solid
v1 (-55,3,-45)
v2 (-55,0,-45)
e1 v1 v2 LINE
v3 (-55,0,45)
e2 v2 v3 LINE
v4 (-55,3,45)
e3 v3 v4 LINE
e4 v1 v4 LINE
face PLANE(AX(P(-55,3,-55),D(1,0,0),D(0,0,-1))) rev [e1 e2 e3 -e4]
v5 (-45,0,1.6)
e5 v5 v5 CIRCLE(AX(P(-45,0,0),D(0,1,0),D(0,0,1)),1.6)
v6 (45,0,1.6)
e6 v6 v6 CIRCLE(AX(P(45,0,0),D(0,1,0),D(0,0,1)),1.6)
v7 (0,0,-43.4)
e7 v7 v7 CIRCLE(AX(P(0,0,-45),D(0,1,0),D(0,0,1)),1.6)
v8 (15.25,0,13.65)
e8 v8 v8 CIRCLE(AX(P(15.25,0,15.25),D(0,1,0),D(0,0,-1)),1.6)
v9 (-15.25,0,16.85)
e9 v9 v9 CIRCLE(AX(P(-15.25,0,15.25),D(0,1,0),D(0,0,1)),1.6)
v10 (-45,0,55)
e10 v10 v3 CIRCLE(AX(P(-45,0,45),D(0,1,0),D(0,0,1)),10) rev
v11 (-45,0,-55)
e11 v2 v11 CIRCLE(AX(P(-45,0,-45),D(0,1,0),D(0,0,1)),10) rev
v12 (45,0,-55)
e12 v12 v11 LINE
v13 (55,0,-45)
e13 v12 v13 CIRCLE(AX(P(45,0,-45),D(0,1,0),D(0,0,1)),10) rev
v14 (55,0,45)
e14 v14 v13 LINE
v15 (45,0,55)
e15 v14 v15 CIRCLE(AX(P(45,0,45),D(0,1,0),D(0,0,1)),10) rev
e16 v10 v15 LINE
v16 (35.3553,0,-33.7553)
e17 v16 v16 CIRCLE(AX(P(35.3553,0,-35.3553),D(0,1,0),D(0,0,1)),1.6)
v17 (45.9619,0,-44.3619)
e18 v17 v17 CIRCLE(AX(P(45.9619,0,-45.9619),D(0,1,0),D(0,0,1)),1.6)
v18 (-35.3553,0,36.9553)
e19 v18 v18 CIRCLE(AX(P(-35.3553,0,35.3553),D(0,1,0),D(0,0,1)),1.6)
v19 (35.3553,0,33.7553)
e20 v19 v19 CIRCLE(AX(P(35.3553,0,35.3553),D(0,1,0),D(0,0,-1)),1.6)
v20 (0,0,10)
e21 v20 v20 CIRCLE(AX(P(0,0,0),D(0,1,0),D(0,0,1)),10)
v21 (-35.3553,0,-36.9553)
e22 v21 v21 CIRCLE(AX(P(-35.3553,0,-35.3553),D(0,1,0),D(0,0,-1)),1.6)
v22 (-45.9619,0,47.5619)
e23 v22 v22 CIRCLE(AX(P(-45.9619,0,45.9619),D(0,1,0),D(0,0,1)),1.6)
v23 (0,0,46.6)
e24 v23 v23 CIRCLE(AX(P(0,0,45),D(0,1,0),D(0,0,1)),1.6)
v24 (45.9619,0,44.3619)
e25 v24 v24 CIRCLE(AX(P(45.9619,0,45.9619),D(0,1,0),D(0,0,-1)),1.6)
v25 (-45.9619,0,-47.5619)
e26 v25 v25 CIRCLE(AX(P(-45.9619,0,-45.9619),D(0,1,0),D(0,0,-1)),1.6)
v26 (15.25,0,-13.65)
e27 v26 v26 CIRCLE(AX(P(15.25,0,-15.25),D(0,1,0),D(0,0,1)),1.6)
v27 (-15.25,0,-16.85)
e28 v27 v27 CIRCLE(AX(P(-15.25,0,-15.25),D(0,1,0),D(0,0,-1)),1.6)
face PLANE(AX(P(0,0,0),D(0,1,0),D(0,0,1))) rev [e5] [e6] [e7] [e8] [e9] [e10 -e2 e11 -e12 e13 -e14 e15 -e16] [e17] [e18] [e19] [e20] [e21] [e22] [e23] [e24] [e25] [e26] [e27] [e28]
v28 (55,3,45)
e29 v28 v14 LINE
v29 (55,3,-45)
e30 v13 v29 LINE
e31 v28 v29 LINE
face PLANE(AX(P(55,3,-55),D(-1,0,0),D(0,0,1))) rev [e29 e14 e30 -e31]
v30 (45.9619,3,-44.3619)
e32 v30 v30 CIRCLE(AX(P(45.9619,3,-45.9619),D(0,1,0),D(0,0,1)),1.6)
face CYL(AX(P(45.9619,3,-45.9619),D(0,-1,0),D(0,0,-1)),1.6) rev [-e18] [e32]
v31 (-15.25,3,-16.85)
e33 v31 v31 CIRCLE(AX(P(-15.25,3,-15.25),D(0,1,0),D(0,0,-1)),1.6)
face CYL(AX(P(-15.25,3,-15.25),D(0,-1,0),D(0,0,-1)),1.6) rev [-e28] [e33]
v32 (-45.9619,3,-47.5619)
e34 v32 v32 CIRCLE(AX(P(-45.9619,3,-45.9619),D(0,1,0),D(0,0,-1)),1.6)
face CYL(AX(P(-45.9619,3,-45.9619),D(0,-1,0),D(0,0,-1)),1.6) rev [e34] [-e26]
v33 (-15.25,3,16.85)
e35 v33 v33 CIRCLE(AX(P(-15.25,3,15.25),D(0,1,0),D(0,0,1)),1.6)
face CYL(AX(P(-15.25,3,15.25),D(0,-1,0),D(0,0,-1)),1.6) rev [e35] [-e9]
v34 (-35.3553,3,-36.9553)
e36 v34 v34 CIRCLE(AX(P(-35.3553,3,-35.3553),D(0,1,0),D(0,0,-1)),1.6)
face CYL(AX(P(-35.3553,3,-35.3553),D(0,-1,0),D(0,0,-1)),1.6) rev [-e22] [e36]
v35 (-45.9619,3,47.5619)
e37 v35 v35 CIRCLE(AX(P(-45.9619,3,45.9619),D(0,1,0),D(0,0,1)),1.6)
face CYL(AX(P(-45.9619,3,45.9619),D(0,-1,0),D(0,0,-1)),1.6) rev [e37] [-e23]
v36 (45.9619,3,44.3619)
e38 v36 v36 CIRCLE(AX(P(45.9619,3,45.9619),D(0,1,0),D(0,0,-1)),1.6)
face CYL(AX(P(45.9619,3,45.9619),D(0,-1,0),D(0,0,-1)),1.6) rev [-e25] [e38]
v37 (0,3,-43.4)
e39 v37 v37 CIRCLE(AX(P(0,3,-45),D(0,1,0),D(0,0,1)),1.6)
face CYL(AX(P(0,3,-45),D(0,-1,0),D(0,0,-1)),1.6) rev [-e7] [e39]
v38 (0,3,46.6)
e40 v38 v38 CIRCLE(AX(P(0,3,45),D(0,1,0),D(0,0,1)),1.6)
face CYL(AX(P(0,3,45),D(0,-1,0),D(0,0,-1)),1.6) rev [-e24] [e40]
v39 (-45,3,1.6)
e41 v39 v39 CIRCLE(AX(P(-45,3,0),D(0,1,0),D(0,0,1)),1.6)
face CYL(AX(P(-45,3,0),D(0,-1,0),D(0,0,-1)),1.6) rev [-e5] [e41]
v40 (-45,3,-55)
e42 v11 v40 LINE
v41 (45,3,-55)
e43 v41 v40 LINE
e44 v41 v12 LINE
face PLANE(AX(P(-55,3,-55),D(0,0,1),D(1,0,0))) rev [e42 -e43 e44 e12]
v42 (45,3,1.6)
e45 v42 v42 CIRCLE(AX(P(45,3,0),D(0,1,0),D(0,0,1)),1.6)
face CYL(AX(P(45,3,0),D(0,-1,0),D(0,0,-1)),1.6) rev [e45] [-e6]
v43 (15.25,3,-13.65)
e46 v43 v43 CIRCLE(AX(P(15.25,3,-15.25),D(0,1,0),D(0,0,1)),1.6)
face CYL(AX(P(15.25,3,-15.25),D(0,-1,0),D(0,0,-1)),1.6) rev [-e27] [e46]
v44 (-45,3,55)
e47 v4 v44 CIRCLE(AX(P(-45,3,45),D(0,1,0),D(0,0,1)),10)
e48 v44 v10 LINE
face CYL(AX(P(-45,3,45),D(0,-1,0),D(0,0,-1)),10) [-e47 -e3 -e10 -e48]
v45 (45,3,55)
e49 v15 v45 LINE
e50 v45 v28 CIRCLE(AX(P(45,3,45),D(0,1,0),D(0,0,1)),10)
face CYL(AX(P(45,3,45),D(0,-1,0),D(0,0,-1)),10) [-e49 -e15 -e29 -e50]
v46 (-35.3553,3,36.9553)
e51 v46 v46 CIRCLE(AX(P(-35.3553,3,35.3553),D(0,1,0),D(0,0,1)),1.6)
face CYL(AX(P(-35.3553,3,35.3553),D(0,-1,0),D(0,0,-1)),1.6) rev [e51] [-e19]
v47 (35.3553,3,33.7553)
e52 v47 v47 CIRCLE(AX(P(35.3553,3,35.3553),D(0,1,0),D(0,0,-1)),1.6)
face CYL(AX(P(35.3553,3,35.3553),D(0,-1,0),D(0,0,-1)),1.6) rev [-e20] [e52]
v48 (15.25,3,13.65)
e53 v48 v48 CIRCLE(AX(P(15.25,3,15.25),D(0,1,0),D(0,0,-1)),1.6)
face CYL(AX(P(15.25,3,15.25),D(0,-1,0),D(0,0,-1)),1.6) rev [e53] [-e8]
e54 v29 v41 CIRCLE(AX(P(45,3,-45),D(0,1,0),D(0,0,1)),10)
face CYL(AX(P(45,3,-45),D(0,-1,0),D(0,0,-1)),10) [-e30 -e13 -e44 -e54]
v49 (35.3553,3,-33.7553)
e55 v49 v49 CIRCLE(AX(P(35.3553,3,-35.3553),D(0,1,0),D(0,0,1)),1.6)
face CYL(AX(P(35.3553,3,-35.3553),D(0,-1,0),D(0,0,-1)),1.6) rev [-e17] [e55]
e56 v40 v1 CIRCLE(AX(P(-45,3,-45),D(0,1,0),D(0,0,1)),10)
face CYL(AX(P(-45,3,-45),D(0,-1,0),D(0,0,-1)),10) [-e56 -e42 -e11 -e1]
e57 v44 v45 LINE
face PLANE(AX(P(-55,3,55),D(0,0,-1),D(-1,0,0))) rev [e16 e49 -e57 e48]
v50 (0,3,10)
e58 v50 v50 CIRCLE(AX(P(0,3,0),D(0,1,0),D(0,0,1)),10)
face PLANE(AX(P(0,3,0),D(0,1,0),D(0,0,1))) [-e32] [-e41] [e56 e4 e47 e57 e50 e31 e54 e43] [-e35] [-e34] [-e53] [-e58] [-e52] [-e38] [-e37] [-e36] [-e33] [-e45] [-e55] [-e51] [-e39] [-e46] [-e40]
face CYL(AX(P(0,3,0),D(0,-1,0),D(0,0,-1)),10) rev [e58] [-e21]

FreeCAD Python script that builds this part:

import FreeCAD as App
import Part
import Sketcher
from FreeCAD import Vector
Q = App.Units.Quantity


def edges_at(feature, points):
    """Names of the edges that pass closest to the given points."""
    edges = feature.Shape.Edges
    near = lambda p: min(range(len(edges)), key=lambda i: edges[i].distToShape(Part.Vertex(*p))[0])
    return sorted({f"Edge{near(p) + 1}" for p in points})

doc = App.newDocument("Part")
body = doc.addObject("PartDesign::Body", "Body")

# Sketch on XZ plane
sketch1 = body.newObject("Sketcher::SketchObject", "Sketch")
sketch1.AttachmentSupport = (doc.getObject("XZ_Plane"), [""])
sketch1.MapMode = "FlatFace"
sketch1.addGeometry([
    Part.LineSegment(Vector(-55, -55, 0), Vector(-55, 55, 0)),  # 0
    Part.LineSegment(Vector(-55, 55, 0), Vector(55, 55, 0)),  # 1
    Part.LineSegment(Vector(55, 55, 0), Vector(55, -55, 0)),  # 2
    Part.LineSegment(Vector(55, -55, 0), Vector(-55, -55, 0)),  # 3
    Part.Circle(Vector(-46, 46, 0), Vector(0, 0, 1), 1.6),  # 4
    Part.Circle(Vector(-35.4, 35.4, 0), Vector(0, 0, 1), 1.6),  # 5
    Part.Circle(Vector(-15.2, 15.2, 0), Vector(0, 0, 1), 1.6),  # 6
    Part.Circle(Vector(0, 45, 0), Vector(0, 0, 1), 1.6),  # 7
    Part.Circle(Vector(46, 46, 0), Vector(0, 0, 1), 1.6),  # 8
    Part.Circle(Vector(35.4, 35.4, 0), Vector(0, 0, 1), 1.6),  # 9
    Part.Circle(Vector(15.2, 15.2, 0), Vector(0, 0, 1), 1.6),  # 10
    Part.Circle(Vector(-45, 0, 0), Vector(0, 0, 1), 1.6),  # 11
    Part.Circle(Vector(-15.2, -15.2, 0), Vector(0, 0, 1), 1.6),  # 12
    Part.Circle(Vector(-35.4, -35.4, 0), Vector(0, 0, 1), 1.6),  # 13
    Part.Circle(Vector(-46, -46, 0), Vector(0, 0, 1), 1.6),  # 14
    Part.Circle(Vector(0, 0, 0), Vector(0, 0, 1), 10),  # 15
    Part.Circle(Vector(15.2, -15.2, 0), Vector(0, 0, 1), 1.6),  # 16
    Part.Circle(Vector(45, 0, 0), Vector(0, 0, 1), 1.6),  # 17
    Part.Circle(Vector(0, -45, 0), Vector(0, 0, 1), 1.6),  # 18
    Part.Circle(Vector(35.4, -35.4, 0), Vector(0, 0, 1), 1.6),  # 19
    Part.Circle(Vector(46, -46, 0), Vector(0, 0, 1), 1.6),  # 20
], False)
sketch1.addConstraint([
    Sketcher.Constraint("Coincident", 0, 2, 1, 1),
    Sketcher.Constraint("Coincident", 1, 2, 2, 1),
    Sketcher.Constraint("Coincident", 2, 2, 3, 1),
    Sketcher.Constraint("Coincident", 3, 2, 0, 1),
    Sketcher.Constraint("Vertical", 0),
    Sketcher.Constraint("Horizontal", 1),
    Sketcher.Constraint("Vertical", 2),
    Sketcher.Constraint("Horizontal", 3),
    Sketcher.Constraint("Coincident", 15, 3, -1, 1),
    Sketcher.Constraint("Equal", 4, 5),
    Sketcher.Constraint("Equal", 5, 6),
    Sketcher.Constraint("Equal", 6, 7),
    Sketcher.Constraint("Equal", 7, 8),
    Sketcher.Constraint("Equal", 8, 9),
    Sketcher.Constraint("Equal", 9, 10),
    Sketcher.Constraint("Equal", 10, 11),
    Sketcher.Constraint("Equal", 11, 12),
    Sketcher.Constraint("Equal", 12, 13),
    Sketcher.Constraint("Equal", 13, 14),
    Sketcher.Constraint("Equal", 14, 16),
    Sketcher.Constraint("Equal", 16, 17),
    Sketcher.Constraint("Equal", 17, 18),
    Sketcher.Constraint("Equal", 18, 19),
    Sketcher.Constraint("Equal", 19, 20),
    Sketcher.Constraint("Symmetric", 10, 3, 12, 3, -1, 1),
    Sketcher.Constraint("Symmetric", 9, 3, 13, 3, -1, 1),
    Sketcher.Constraint("Symmetric", 8, 3, 14, 3, -1, 1),
    Sketcher.Constraint("Symmetric", 6, 3, 16, 3, -1, 1),
    Sketcher.Constraint("Symmetric", 11, 3, 17, 3, -1, 1),
    Sketcher.Constraint("Symmetric", 7, 3, 18, 3, -1, 1),
    Sketcher.Constraint("Symmetric", 5, 3, 19, 3, -1, 1),
    Sketcher.Constraint("Symmetric", 4, 3, 20, 3, -1, 1),
    Sketcher.Constraint("Symmetric", 0, 2, 2, 2, -1, 1),
    Sketcher.Constraint("Symmetric", 4, 3, 8, 3, -2),
    Sketcher.Constraint("Symmetric", 5, 3, 9, 3, -2),
    Sketcher.Constraint("Symmetric", 6, 3, 10, 3, -2),
    Sketcher.Constraint("PointOnObject", 7, 3, -2),
    Sketcher.Constraint("PointOnObject", 11, 3, -1),
    Sketcher.Constraint("Equal", 3, 0),
    Sketcher.Constraint("Diameter", 15, Q("20 mm")),
    Sketcher.Constraint("Diameter", 4, Q("3.2 mm")),
    Sketcher.Constraint("DistanceX", 1, 1, 1, 2, Q("110 mm")),
    Sketcher.Constraint("DistanceY", -1, 1, 7, 3, Q("45 mm")),
    Sketcher.Constraint("DistanceX", 11, 3, -1, 1, Q("45 mm")),
    Sketcher.Constraint("DistanceX", 6, 3, 10, 3, Q("30.5 mm")),
    Sketcher.Constraint("DistanceY", 12, 3, 6, 3, Q("30.5 mm")),
    Sketcher.Constraint("DistanceX", 4, 3, -1, 1, Q("45.9619 mm")),
    Sketcher.Constraint("DistanceY", -1, 1, 4, 3, Q("45.9619 mm")),
    Sketcher.Constraint("DistanceX", 5, 3, -1, 1, Q("35.3553 mm")),
    Sketcher.Constraint("DistanceY", -1, 1, 5, 3, Q("35.3553 mm")),
])
pad1 = body.newObject("PartDesign::Pad", "Pad")
pad1.Profile = sketch1
pad1.Length = 3
pad1.Reversed = True
doc.recompute()

fillet = body.newObject("PartDesign::Fillet", "Fillet")
fillet.Base = (pad1, edges_at(pad1, [
    (55, 1.5, 55),
    (-55, 1.5, 55),
    (-55, 1.5, -55),
    (55, 1.5, -55),
]))
fillet.Radius = 10

doc.recompute()
